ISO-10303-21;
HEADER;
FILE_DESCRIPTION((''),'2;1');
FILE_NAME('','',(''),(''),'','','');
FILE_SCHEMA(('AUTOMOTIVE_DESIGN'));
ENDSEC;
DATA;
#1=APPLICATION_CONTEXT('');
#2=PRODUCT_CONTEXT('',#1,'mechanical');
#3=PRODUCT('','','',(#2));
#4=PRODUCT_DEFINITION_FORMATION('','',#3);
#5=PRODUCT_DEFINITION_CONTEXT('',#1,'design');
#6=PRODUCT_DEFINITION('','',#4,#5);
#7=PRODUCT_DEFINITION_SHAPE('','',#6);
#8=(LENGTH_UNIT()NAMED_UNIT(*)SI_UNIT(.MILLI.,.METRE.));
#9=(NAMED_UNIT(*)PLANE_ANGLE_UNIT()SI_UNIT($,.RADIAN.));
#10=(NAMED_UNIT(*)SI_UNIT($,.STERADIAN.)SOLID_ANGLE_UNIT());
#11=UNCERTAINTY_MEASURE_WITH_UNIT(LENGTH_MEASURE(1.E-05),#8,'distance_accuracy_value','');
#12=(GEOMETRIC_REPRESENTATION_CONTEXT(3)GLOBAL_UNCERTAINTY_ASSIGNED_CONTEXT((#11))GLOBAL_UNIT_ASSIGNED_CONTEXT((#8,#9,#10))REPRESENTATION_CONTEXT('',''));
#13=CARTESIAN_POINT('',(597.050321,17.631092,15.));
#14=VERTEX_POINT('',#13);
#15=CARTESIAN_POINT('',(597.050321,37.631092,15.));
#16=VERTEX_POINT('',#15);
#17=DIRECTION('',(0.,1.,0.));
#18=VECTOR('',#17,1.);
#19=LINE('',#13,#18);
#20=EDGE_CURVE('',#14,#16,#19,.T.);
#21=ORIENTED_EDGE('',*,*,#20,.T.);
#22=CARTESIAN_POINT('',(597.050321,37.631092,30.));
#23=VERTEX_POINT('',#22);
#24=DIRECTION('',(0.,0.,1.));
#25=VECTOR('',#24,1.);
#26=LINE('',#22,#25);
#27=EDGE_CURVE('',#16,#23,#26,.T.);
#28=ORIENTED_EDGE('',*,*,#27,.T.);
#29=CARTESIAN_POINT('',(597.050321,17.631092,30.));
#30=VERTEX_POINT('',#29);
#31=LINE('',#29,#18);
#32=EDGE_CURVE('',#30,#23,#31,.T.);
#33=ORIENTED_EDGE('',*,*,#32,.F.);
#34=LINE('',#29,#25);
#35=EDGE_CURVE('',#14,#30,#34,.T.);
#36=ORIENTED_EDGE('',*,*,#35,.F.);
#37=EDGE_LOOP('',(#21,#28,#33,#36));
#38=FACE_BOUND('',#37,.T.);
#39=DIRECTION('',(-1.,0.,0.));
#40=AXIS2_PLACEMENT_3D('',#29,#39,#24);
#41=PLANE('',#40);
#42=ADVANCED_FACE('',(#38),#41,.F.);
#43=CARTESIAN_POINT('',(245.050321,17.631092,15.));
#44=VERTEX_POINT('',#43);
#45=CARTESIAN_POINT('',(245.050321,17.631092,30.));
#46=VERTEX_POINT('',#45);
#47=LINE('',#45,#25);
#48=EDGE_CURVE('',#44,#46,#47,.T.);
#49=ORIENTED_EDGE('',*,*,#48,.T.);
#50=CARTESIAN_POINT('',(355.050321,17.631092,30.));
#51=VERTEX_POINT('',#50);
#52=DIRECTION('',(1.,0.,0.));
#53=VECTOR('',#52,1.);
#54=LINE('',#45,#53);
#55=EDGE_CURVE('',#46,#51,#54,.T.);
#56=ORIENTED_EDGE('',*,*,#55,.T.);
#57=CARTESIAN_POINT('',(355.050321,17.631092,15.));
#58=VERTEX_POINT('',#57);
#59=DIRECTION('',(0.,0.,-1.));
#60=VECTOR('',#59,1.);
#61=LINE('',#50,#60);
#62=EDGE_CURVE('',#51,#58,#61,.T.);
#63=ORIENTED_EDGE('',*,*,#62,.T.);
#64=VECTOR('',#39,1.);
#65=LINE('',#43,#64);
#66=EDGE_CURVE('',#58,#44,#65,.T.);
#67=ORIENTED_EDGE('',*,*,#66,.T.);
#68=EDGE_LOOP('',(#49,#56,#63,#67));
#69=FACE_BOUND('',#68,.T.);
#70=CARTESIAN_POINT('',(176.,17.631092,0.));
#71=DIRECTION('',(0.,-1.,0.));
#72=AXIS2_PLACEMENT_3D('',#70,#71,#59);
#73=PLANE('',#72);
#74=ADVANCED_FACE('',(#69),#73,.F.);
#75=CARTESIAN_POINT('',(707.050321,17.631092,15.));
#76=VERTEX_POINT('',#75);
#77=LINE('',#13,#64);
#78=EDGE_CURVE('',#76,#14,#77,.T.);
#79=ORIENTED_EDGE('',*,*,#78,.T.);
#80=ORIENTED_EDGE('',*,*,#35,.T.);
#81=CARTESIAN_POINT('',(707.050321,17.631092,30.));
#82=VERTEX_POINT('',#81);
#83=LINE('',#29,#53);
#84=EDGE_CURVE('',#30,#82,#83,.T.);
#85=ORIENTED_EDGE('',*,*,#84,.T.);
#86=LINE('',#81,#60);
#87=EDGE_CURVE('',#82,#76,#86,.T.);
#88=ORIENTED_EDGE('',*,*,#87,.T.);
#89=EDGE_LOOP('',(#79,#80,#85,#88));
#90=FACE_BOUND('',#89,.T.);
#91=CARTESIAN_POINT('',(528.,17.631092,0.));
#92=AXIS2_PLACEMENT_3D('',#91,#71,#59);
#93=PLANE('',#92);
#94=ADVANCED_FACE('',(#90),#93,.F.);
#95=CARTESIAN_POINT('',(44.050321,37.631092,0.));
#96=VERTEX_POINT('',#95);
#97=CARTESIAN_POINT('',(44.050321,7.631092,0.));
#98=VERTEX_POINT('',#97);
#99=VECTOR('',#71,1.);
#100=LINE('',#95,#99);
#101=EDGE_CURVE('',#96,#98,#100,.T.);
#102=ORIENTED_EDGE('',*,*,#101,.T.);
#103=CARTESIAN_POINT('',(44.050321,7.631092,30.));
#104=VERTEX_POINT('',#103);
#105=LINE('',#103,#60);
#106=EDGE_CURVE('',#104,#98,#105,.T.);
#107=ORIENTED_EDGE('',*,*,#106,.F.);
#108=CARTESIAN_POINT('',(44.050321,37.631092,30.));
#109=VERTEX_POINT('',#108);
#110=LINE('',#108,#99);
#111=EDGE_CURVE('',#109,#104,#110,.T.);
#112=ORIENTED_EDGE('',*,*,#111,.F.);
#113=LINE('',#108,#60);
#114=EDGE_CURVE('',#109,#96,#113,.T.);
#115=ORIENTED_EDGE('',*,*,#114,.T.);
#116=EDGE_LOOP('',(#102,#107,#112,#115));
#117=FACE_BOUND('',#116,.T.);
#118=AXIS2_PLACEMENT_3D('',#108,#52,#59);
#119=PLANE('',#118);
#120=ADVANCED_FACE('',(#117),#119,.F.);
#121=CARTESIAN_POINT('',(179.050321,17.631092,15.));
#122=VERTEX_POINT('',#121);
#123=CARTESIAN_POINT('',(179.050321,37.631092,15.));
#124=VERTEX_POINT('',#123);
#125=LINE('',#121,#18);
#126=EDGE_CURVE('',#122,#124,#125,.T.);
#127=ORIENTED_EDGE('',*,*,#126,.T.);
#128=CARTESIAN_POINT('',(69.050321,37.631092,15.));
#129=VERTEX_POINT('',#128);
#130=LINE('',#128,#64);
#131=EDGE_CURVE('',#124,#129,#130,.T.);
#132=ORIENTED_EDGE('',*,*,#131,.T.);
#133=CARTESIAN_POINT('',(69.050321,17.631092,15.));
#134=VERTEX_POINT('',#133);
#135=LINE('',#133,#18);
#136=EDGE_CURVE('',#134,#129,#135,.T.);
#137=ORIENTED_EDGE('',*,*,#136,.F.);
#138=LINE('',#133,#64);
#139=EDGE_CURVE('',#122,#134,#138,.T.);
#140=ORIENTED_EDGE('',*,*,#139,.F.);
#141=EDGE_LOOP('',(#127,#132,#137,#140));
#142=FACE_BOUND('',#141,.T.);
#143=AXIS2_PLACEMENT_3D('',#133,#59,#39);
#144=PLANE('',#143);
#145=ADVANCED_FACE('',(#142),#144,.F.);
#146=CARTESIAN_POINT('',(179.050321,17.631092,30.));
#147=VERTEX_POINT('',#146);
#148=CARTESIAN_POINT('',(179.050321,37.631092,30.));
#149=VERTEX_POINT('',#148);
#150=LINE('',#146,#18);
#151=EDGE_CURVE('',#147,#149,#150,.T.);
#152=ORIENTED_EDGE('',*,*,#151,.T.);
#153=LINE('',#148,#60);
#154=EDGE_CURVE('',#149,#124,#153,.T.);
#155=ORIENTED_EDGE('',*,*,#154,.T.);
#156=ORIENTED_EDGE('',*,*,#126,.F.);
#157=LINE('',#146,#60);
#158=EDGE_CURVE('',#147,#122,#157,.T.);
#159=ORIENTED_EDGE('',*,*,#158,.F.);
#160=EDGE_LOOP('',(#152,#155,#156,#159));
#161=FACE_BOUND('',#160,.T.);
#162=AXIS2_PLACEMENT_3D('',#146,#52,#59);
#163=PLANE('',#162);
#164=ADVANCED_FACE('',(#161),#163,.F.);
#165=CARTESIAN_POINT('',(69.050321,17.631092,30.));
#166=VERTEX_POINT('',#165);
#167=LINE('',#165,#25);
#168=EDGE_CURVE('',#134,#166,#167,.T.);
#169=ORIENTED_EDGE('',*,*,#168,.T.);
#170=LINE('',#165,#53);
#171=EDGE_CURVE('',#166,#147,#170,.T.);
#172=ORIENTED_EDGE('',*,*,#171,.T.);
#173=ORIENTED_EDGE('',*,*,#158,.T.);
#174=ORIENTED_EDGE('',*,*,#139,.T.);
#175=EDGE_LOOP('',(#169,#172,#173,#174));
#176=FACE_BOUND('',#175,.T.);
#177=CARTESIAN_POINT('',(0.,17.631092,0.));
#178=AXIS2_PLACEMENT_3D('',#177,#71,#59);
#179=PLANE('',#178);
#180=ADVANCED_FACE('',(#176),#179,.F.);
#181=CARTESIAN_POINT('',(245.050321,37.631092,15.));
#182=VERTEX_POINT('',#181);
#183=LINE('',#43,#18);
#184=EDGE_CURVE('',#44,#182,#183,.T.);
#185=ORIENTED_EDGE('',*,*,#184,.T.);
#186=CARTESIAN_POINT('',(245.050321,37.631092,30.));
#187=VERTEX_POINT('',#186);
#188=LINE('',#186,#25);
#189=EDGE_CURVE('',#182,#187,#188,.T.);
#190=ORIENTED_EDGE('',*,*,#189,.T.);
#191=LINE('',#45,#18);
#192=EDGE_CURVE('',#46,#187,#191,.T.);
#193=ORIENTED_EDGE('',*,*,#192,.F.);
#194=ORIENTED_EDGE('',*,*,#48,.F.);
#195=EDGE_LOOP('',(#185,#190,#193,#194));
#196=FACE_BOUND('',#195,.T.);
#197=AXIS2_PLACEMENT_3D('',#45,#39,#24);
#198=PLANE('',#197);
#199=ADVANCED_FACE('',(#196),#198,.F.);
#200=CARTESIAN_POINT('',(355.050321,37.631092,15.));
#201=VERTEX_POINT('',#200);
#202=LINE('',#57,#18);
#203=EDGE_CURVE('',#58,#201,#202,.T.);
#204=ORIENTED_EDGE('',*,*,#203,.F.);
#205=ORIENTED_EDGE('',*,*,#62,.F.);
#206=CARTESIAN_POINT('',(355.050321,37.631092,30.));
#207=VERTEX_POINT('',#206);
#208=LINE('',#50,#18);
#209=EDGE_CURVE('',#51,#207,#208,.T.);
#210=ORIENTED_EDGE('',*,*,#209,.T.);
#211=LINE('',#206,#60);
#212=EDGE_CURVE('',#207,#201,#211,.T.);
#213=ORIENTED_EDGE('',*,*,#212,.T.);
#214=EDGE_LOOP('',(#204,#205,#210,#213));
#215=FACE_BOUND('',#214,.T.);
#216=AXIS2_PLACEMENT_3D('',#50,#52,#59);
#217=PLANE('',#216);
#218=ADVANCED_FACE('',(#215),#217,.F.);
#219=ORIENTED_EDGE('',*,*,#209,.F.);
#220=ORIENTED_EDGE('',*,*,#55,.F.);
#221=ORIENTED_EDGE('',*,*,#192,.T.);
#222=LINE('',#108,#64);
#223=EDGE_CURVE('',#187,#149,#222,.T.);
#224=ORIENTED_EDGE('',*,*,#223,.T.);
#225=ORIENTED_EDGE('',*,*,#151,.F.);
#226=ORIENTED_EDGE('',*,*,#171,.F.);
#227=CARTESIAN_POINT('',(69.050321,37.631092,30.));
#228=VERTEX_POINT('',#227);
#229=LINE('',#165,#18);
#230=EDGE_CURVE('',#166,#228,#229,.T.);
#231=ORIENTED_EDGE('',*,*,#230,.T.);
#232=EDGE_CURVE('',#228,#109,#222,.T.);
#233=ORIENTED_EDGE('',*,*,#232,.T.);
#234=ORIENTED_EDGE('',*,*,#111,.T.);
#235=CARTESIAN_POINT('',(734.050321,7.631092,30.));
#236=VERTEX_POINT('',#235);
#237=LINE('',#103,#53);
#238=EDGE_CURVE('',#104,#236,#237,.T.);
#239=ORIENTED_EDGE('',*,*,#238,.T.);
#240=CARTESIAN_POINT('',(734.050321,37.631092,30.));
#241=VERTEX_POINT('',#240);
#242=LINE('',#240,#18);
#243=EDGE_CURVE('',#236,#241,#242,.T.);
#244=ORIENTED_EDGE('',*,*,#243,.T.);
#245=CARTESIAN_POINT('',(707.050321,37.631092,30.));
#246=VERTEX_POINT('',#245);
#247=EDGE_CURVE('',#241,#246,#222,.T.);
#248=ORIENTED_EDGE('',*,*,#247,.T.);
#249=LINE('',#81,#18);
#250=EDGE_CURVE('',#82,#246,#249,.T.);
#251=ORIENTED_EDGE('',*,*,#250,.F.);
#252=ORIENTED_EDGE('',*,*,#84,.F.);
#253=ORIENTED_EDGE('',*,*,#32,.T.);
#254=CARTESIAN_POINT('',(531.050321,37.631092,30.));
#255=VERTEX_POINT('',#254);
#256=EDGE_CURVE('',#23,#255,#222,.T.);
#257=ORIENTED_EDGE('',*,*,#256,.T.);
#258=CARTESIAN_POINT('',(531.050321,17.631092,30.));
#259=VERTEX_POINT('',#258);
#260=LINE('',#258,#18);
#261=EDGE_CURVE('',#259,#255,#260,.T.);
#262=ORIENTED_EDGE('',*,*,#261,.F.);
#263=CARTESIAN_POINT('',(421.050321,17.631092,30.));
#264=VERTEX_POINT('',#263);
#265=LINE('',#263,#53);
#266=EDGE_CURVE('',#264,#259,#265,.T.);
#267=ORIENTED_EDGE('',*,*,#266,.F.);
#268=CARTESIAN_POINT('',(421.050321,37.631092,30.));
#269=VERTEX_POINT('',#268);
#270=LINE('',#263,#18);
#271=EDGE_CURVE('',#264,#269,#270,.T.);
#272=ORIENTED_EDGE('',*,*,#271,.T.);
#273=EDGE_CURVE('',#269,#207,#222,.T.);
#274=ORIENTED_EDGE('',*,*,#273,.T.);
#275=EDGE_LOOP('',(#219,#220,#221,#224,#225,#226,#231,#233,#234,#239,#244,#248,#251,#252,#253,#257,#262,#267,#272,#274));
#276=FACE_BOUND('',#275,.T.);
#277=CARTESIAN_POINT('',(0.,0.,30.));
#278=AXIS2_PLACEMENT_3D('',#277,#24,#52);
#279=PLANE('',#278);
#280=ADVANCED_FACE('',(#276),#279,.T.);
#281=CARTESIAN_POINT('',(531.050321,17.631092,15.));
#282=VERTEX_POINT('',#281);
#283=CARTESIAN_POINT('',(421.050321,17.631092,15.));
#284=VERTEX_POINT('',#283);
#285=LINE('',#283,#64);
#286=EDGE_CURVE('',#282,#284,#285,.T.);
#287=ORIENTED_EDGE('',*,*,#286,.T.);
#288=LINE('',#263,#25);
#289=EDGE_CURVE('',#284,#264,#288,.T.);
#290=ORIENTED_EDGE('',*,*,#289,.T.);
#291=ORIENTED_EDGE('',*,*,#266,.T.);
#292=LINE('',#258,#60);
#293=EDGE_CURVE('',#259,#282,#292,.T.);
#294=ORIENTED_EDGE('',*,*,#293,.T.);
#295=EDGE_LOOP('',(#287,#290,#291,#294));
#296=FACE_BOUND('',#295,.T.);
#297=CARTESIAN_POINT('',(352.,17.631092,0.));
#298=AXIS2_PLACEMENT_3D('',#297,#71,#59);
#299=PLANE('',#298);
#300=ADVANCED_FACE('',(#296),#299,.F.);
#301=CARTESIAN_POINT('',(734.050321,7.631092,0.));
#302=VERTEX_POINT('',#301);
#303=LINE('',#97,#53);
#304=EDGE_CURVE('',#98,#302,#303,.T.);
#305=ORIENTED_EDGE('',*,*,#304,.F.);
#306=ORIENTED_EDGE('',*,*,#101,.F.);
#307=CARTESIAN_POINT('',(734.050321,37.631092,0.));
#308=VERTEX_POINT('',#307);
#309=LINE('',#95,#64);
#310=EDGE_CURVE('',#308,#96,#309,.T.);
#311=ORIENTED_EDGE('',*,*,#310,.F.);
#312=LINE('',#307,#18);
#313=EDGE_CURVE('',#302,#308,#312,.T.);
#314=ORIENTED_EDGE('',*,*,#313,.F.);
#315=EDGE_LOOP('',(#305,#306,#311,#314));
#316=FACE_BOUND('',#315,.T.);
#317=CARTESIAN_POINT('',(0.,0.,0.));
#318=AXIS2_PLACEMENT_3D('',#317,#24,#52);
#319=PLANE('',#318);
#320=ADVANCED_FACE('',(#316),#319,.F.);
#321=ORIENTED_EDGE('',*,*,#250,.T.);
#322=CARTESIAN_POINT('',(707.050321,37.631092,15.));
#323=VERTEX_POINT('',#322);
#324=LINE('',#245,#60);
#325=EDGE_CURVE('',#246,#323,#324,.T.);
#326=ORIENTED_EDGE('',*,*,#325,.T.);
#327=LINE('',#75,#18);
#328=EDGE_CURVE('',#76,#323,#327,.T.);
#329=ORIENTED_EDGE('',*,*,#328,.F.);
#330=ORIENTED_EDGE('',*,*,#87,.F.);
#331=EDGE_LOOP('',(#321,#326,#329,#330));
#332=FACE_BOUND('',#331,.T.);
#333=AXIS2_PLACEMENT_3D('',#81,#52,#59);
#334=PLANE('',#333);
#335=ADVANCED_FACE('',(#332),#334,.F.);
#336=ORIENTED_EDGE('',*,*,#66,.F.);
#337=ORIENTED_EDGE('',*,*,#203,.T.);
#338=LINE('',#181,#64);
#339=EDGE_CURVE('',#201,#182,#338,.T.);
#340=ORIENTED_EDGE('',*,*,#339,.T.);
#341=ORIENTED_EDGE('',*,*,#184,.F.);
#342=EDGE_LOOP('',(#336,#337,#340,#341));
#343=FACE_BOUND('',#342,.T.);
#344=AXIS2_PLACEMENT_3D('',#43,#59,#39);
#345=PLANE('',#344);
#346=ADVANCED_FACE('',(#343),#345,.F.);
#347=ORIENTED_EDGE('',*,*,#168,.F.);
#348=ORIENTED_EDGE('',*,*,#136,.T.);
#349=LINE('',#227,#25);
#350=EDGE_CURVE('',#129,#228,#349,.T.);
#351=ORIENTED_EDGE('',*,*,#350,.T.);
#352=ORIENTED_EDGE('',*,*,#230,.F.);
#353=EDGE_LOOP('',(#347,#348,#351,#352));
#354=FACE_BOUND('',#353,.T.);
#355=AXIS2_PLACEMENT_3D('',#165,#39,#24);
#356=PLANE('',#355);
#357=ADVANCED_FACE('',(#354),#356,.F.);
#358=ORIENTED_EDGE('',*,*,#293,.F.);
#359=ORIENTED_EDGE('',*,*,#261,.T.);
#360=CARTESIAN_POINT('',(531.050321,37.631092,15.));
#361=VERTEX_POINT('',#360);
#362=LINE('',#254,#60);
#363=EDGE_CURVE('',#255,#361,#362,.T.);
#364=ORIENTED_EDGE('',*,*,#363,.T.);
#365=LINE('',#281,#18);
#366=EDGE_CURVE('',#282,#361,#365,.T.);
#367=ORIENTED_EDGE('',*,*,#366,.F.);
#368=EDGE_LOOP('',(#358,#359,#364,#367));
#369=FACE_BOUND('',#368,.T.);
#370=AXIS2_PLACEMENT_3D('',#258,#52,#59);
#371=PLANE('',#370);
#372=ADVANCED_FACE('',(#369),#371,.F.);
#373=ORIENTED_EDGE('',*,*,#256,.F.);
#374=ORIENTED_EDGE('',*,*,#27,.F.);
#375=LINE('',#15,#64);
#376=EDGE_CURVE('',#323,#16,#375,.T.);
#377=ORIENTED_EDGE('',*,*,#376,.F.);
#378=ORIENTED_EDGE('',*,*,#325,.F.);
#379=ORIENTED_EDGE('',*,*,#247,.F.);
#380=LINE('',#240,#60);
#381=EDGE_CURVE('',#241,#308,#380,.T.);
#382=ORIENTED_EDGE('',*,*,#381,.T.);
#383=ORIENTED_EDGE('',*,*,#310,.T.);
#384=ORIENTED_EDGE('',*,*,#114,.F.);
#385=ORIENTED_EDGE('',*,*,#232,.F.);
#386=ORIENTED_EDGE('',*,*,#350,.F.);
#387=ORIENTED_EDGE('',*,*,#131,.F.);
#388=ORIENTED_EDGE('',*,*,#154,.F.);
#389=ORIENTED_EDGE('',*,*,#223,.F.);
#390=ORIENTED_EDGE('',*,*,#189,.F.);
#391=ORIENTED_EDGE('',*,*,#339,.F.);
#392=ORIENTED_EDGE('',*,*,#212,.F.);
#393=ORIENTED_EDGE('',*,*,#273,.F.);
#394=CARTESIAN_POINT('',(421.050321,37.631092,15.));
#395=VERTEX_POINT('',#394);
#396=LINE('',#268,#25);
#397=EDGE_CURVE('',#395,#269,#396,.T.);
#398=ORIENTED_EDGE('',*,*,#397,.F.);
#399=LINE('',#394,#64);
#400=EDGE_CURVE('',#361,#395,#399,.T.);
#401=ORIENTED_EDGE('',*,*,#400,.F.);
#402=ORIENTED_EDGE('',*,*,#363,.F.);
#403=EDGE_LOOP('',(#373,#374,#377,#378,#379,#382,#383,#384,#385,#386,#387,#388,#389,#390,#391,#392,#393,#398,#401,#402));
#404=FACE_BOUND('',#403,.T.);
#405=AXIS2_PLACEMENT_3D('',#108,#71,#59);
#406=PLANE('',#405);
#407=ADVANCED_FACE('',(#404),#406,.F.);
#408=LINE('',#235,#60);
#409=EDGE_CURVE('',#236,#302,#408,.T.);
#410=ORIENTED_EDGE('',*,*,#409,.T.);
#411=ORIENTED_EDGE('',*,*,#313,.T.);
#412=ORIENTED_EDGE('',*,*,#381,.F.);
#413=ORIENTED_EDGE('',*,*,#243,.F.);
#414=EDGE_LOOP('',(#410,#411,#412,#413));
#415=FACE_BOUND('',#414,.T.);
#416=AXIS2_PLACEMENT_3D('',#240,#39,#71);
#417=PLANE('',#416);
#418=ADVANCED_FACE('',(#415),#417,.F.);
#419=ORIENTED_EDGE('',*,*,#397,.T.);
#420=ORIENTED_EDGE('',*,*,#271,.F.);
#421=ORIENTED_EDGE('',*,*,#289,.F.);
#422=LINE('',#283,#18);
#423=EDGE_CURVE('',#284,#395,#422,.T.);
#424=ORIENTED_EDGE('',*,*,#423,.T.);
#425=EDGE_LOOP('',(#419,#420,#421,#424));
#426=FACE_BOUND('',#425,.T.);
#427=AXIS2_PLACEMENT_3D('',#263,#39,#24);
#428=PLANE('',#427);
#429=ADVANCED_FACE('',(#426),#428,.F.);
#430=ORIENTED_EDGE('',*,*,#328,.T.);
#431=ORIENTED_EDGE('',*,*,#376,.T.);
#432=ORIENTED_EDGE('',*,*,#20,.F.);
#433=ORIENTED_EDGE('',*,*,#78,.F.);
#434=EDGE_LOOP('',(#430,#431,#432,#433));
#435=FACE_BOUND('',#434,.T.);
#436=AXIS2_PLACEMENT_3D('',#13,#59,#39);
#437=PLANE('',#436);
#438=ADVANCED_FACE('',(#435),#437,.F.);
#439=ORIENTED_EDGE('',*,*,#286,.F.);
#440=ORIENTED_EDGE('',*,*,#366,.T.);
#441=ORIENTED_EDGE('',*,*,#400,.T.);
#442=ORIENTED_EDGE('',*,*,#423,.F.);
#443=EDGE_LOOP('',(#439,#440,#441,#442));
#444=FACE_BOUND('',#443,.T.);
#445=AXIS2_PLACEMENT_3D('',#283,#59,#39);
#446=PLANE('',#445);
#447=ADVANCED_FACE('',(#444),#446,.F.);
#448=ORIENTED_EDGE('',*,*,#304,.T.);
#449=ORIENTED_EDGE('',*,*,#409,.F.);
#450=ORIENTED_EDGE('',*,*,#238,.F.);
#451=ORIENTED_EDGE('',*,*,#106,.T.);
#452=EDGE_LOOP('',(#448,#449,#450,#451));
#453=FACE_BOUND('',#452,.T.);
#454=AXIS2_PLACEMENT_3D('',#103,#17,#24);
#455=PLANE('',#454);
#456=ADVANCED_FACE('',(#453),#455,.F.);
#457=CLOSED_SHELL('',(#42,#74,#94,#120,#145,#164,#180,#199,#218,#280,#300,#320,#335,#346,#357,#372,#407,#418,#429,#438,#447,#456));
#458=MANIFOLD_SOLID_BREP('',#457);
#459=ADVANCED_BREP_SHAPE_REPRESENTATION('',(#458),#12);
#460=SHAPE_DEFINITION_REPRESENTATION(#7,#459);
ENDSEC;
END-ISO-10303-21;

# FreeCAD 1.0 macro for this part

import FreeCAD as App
import Part
import Sketcher
Q = App.Units.Quantity

doc = App.newDocument("Part")
body = doc.addObject("PartDesign::Body", "Body")

# Sketch on XY plane
sketch1 = doc.addObject("Sketcher::SketchObject", "Sketch")
body.addObject(sketch1)
sketch1.AttachmentSupport = (doc.XY_Plane, [""])
sketch1.MapMode = "FlatFace"
sketch1.addGeometry([
    Part.LineSegment(App.Vector(44, 38, 0), App.Vector(44, 8, 0)),
    Part.LineSegment(App.Vector(44, 8, 0), App.Vector(734, 8, 0)),
    Part.LineSegment(App.Vector(734, 8, 0), App.Vector(734, 38, 0)),
    Part.LineSegment(App.Vector(734, 38, 0), App.Vector(44, 38, 0)),
], False)
sketch1.addConstraint([
    Sketcher.Constraint("Coincident", 0, 2, 1, 1),
    Sketcher.Constraint("Coincident", 1, 2, 2, 1),
    Sketcher.Constraint("Coincident", 2, 2, 3, 1),
    Sketcher.Constraint("Coincident", 3, 2, 0, 1),
    Sketcher.Constraint("Vertical", 0),
    Sketcher.Constraint("Horizontal", 1),
    Sketcher.Constraint("Vertical", 2),
    Sketcher.Constraint("Horizontal", 3),
    Sketcher.Constraint("DistanceX", 1, 1, 1, 2, Q("690 mm")),
    Sketcher.Constraint("DistanceY", 0, 2, 0, 1, Q("30 mm")),
    Sketcher.Constraint("DistanceX", -1, 1, 0, 2, Q("44.050321 mm")),
    Sketcher.Constraint("DistanceY", -1, 1, 0, 2, Q("7.631092 mm")),
])
pad1 = doc.addObject("PartDesign::Pad", "Pad")
body.addObject(pad1)
pad1.Profile = sketch1
pad1.Length = 30

# Sketch on XZ plane
sketch2 = doc.addObject("Sketcher::SketchObject", "Sketch001")
body.addObject(sketch2)
sketch2.AttachmentSupport = (doc.XZ_Plane, [""])
sketch2.MapMode = "FlatFace"
sketch2.AttachmentOffset = App.Placement(App.Vector(0, 0, -37.631092), App.Rotation())
sketch2.addGeometry([
    Part.LineSegment(App.Vector(69, 15, 0), App.Vector(69, 30, 0)),
    Part.LineSegment(App.Vector(69, 30, 0), App.Vector(179, 30, 0)),
    Part.LineSegment(App.Vector(179, 30, 0), App.Vector(179, 15, 0)),
    Part.LineSegment(App.Vector(179, 15, 0), App.Vector(69, 15, 0)),
], False)
sketch2.addConstraint([
    Sketcher.Constraint("Coincident", 0, 2, 1, 1),
    Sketcher.Constraint("Coincident", 1, 2, 2, 1),
    Sketcher.Constraint("Coincident", 2, 2, 3, 1),
    Sketcher.Constraint("Coincident", 3, 2, 0, 1),
    Sketcher.Constraint("Vertical", 0),
    Sketcher.Constraint("Horizontal", 1),
    Sketcher.Constraint("Vertical", 2),
    Sketcher.Constraint("Horizontal", 3),
    Sketcher.Constraint("DistanceX", 1, 1, 1, 2, Q("110 mm")),
    Sketcher.Constraint("DistanceY", 0, 1, 0, 2, Q("15 mm")),
    Sketcher.Constraint("DistanceY", -1, 1, 0, 2, Q("30 mm")),
    Sketcher.Constraint("DistanceX", -1, 1, 0, 2, Q("69.050321 mm")),
])
pocket1 = doc.addObject("PartDesign::Pocket", "Pocket")
body.addObject(pocket1)
pocket1.Profile = sketch2
pocket1.Length = 20
pocket1.Reversed = True
doc.recompute()

linearpattern = doc.addObject("PartDesign::LinearPattern", "LinearPattern")
body.addObject(linearpattern)
linearpattern.Originals = [pocket1]
linearpattern.Direction = (doc.X_Axis, [""])
linearpattern.Mode = "offset"
linearpattern.Offset = 176
linearpattern.Occurrences = 4
body.Tip = linearpattern

doc.recompute()
